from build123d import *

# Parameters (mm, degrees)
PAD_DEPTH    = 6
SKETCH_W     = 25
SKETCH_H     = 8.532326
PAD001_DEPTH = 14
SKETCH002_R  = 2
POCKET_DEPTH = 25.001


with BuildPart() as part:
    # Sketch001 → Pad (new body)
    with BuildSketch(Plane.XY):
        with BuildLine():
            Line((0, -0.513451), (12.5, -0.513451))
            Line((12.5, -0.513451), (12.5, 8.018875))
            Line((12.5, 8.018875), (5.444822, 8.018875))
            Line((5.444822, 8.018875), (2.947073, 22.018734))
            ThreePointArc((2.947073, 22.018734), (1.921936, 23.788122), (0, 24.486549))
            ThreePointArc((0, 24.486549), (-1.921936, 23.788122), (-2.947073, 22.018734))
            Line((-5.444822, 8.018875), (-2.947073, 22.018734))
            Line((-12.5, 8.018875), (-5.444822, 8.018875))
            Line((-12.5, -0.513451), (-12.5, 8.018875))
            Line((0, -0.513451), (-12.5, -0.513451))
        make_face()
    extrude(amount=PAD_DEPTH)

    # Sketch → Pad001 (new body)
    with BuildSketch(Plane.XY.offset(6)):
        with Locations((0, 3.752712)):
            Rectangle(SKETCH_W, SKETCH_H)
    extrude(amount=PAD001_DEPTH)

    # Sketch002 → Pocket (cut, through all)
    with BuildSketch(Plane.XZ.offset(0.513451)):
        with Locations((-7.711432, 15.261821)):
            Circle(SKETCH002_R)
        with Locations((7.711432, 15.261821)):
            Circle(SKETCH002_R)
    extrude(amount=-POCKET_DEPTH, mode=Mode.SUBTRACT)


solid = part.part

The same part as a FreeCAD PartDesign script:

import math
import FreeCAD as App
import Part
import Sketcher
Q = App.Units.Quantity

doc = App.newDocument("Part")
body = doc.addObject("PartDesign::Body", "Body")

# Sketch on XY plane
sketch1 = doc.addObject("Sketcher::SketchObject", "Sketch")
body.addObject(sketch1)
sketch1.AttachmentSupport = (doc.XY_Plane, [""])
sketch1.MapMode = "FlatFace"
sketch1.addGeometry([
    Part.LineSegment(App.Vector(12.5, -0.513451, 0), App.Vector(12.5, 8.018875, 0)),  # 0
    Part.LineSegment(App.Vector(12.5, 8.018875, 0), App.Vector(5.444822, 8.018875, 0)),  # 1
    Part.LineSegment(App.Vector(5.444822, 8.018875, 0), App.Vector(2.947073, 22.018734, 0)),  # 2
    Part.ArcOfCircle(Part.Circle(App.Vector(0.000001, 21.492941, 0), App.Vector(0, 0, 1), 2.993608), math.radians(10.115827), math.radians(90.000022)),  # 3
    Part.ArcOfCircle(Part.Circle(App.Vector(-0.000001, 21.492941, 0), App.Vector(0, 0, 1), 2.993608), math.radians(89.999978), math.radians(169.884173)),  # 4
    Part.LineSegment(App.Vector(-2.947073, 22.018734, 0), App.Vector(-5.444822, 8.018875, 0)),  # 5
    Part.LineSegment(App.Vector(-5.444822, 8.018875, 0), App.Vector(-12.5, 8.018875, 0)),  # 6
    Part.LineSegment(App.Vector(-12.5, 8.018875, 0), App.Vector(-12.5, -0.513451, 0)),  # 7
    Part.LineSegment(App.Vector(-12.5, -0.513451, 0), App.Vector(12.5, -0.513451, 0)),  # 8
], False)
sketch1.addConstraint([
    Sketcher.Constraint("Coincident", 0, 2, 1, 1),
    Sketcher.Constraint("Coincident", 1, 2, 2, 1),
    Sketcher.Constraint("Tangent", 2, 2, 3, 1),
    Sketcher.Constraint("Tangent", 3, 2, 4, 1),
    Sketcher.Constraint("Tangent", 4, 2, 5, 1),
    Sketcher.Constraint("Coincident", 5, 2, 6, 1),
    Sketcher.Constraint("Coincident", 6, 2, 7, 1),
    Sketcher.Constraint("Coincident", 7, 2, 8, 1),
    Sketcher.Constraint("Coincident", 8, 2, 0, 1),
    Sketcher.Constraint("Vertical", 0),
    Sketcher.Constraint("Horizontal", 1),
    Sketcher.Constraint("Horizontal", 6),
    Sketcher.Constraint("Vertical", 7),
    Sketcher.Constraint("Horizontal", 8),
    Sketcher.Constraint("Equal", 3, 4),
    Sketcher.Constraint("Symmetric", 2, 2, 4, 2, -2),
    Sketcher.Constraint("Symmetric", 0, 2, 6, 2, -2),
    Sketcher.Constraint("PointOnObject", 3, 2, -2),
    Sketcher.Constraint("DistanceX", 8, 1, 8, 2, Q("25 mm")),
    Sketcher.Constraint("Radius", 3, Q("2.993608 mm")),
    Sketcher.Constraint("Distance", 2, Q("14.220928 mm")),
    Sketcher.Constraint("DistanceX", 1, 2, 1, 1, Q("7.055178 mm")),
    Sketcher.Constraint("DistanceY", 0, 1, 0, 2, Q("8.532326 mm")),
    Sketcher.Constraint("DistanceY", -1, 1, 3, 3, Q("21.492941 mm")),
])
pad1 = doc.addObject("PartDesign::Pad", "Pad")
body.addObject(pad1)
pad1.Profile = sketch1
pad1.Length = 6

# Sketch on XY plane
sketch2 = doc.addObject("Sketcher::SketchObject", "Sketch001")
body.addObject(sketch2)
sketch2.AttachmentSupport = (doc.XY_Plane, [""])
sketch2.MapMode = "FlatFace"
sketch2.AttachmentOffset = App.Placement(App.Vector(0, 0, 6), App.Rotation())
sketch2.addGeometry([
    Part.LineSegment(App.Vector(-12.5, 8.018875, 0), App.Vector(-12.5, -0.513451, 0)),
    Part.LineSegment(App.Vector(-12.5, -0.513451, 0), App.Vector(12.5, -0.513451, 0)),
    Part.LineSegment(App.Vector(12.5, -0.513451, 0), App.Vector(12.5, 8.018875, 0)),
    Part.LineSegment(App.Vector(12.5, 8.018875, 0), App.Vector(-12.5, 8.018875, 0)),
], False)
sketch2.addConstraint([
    Sketcher.Constraint("Coincident", 0, 2, 1, 1),
    Sketcher.Constraint("Coincident", 1, 2, 2, 1),
    Sketcher.Constraint("Coincident", 2, 2, 3, 1),
    Sketcher.Constraint("Coincident", 3, 2, 0, 1),
    Sketcher.Constraint("Vertical", 0),
    Sketcher.Constraint("Horizontal", 1),
    Sketcher.Constraint("Vertical", 2),
    Sketcher.Constraint("Horizontal", 3),
    Sketcher.Constraint("DistanceX", 1, 1, 1, 2, Q("25 mm")),
    Sketcher.Constraint("DistanceX", 0, 2, -1, 1, Q("12.5 mm")),
    Sketcher.Constraint("DistanceY", 0, 2, 0, 1, Q("8.532326 mm")),
    Sketcher.Constraint("DistanceY", 0, 2, -1, 1, Q("0.513451 mm")),
])
pad2 = doc.addObject("PartDesign::Pad", "Pad001")
body.addObject(pad2)
pad2.Profile = sketch2
pad2.Length = 14

# Sketch on XZ plane
sketch3 = doc.addObject("Sketcher::SketchObject", "Sketch002")
body.addObject(sketch3)
sketch3.AttachmentSupport = (doc.XZ_Plane, [""])
sketch3.MapMode = "FlatFace"
sketch3.AttachmentOffset = App.Placement(App.Vector(0, 0, 0.513451), App.Rotation())
sketch3.addGeometry([
    Part.Circle(App.Vector(-7.711432, 15.261821, 0), App.Vector(0, 0, 1), 2),
    Part.Circle(App.Vector(7.711432, 15.261821, 0), App.Vector(0, 0, 1), 2),
], False)
sketch3.addConstraint([
    Sketcher.Constraint("Equal", 0, 1),
    Sketcher.Constraint("Symmetric", 0, 3, 1, 3, -2),
    Sketcher.Constraint("Diameter", 0, Q("4 mm")),
    Sketcher.Constraint("DistanceY", -1, 1, 0, 3, Q("15.261821 mm")),
    Sketcher.Constraint("DistanceX", 0, 3, -1, 1, Q("7.711432 mm")),
])
pocket1 = doc.addObject("PartDesign::Pocket", "Pocket")
body.addObject(pocket1)
pocket1.Profile = sketch3
pocket1.Type = "ThroughAll"

doc.recompute()
